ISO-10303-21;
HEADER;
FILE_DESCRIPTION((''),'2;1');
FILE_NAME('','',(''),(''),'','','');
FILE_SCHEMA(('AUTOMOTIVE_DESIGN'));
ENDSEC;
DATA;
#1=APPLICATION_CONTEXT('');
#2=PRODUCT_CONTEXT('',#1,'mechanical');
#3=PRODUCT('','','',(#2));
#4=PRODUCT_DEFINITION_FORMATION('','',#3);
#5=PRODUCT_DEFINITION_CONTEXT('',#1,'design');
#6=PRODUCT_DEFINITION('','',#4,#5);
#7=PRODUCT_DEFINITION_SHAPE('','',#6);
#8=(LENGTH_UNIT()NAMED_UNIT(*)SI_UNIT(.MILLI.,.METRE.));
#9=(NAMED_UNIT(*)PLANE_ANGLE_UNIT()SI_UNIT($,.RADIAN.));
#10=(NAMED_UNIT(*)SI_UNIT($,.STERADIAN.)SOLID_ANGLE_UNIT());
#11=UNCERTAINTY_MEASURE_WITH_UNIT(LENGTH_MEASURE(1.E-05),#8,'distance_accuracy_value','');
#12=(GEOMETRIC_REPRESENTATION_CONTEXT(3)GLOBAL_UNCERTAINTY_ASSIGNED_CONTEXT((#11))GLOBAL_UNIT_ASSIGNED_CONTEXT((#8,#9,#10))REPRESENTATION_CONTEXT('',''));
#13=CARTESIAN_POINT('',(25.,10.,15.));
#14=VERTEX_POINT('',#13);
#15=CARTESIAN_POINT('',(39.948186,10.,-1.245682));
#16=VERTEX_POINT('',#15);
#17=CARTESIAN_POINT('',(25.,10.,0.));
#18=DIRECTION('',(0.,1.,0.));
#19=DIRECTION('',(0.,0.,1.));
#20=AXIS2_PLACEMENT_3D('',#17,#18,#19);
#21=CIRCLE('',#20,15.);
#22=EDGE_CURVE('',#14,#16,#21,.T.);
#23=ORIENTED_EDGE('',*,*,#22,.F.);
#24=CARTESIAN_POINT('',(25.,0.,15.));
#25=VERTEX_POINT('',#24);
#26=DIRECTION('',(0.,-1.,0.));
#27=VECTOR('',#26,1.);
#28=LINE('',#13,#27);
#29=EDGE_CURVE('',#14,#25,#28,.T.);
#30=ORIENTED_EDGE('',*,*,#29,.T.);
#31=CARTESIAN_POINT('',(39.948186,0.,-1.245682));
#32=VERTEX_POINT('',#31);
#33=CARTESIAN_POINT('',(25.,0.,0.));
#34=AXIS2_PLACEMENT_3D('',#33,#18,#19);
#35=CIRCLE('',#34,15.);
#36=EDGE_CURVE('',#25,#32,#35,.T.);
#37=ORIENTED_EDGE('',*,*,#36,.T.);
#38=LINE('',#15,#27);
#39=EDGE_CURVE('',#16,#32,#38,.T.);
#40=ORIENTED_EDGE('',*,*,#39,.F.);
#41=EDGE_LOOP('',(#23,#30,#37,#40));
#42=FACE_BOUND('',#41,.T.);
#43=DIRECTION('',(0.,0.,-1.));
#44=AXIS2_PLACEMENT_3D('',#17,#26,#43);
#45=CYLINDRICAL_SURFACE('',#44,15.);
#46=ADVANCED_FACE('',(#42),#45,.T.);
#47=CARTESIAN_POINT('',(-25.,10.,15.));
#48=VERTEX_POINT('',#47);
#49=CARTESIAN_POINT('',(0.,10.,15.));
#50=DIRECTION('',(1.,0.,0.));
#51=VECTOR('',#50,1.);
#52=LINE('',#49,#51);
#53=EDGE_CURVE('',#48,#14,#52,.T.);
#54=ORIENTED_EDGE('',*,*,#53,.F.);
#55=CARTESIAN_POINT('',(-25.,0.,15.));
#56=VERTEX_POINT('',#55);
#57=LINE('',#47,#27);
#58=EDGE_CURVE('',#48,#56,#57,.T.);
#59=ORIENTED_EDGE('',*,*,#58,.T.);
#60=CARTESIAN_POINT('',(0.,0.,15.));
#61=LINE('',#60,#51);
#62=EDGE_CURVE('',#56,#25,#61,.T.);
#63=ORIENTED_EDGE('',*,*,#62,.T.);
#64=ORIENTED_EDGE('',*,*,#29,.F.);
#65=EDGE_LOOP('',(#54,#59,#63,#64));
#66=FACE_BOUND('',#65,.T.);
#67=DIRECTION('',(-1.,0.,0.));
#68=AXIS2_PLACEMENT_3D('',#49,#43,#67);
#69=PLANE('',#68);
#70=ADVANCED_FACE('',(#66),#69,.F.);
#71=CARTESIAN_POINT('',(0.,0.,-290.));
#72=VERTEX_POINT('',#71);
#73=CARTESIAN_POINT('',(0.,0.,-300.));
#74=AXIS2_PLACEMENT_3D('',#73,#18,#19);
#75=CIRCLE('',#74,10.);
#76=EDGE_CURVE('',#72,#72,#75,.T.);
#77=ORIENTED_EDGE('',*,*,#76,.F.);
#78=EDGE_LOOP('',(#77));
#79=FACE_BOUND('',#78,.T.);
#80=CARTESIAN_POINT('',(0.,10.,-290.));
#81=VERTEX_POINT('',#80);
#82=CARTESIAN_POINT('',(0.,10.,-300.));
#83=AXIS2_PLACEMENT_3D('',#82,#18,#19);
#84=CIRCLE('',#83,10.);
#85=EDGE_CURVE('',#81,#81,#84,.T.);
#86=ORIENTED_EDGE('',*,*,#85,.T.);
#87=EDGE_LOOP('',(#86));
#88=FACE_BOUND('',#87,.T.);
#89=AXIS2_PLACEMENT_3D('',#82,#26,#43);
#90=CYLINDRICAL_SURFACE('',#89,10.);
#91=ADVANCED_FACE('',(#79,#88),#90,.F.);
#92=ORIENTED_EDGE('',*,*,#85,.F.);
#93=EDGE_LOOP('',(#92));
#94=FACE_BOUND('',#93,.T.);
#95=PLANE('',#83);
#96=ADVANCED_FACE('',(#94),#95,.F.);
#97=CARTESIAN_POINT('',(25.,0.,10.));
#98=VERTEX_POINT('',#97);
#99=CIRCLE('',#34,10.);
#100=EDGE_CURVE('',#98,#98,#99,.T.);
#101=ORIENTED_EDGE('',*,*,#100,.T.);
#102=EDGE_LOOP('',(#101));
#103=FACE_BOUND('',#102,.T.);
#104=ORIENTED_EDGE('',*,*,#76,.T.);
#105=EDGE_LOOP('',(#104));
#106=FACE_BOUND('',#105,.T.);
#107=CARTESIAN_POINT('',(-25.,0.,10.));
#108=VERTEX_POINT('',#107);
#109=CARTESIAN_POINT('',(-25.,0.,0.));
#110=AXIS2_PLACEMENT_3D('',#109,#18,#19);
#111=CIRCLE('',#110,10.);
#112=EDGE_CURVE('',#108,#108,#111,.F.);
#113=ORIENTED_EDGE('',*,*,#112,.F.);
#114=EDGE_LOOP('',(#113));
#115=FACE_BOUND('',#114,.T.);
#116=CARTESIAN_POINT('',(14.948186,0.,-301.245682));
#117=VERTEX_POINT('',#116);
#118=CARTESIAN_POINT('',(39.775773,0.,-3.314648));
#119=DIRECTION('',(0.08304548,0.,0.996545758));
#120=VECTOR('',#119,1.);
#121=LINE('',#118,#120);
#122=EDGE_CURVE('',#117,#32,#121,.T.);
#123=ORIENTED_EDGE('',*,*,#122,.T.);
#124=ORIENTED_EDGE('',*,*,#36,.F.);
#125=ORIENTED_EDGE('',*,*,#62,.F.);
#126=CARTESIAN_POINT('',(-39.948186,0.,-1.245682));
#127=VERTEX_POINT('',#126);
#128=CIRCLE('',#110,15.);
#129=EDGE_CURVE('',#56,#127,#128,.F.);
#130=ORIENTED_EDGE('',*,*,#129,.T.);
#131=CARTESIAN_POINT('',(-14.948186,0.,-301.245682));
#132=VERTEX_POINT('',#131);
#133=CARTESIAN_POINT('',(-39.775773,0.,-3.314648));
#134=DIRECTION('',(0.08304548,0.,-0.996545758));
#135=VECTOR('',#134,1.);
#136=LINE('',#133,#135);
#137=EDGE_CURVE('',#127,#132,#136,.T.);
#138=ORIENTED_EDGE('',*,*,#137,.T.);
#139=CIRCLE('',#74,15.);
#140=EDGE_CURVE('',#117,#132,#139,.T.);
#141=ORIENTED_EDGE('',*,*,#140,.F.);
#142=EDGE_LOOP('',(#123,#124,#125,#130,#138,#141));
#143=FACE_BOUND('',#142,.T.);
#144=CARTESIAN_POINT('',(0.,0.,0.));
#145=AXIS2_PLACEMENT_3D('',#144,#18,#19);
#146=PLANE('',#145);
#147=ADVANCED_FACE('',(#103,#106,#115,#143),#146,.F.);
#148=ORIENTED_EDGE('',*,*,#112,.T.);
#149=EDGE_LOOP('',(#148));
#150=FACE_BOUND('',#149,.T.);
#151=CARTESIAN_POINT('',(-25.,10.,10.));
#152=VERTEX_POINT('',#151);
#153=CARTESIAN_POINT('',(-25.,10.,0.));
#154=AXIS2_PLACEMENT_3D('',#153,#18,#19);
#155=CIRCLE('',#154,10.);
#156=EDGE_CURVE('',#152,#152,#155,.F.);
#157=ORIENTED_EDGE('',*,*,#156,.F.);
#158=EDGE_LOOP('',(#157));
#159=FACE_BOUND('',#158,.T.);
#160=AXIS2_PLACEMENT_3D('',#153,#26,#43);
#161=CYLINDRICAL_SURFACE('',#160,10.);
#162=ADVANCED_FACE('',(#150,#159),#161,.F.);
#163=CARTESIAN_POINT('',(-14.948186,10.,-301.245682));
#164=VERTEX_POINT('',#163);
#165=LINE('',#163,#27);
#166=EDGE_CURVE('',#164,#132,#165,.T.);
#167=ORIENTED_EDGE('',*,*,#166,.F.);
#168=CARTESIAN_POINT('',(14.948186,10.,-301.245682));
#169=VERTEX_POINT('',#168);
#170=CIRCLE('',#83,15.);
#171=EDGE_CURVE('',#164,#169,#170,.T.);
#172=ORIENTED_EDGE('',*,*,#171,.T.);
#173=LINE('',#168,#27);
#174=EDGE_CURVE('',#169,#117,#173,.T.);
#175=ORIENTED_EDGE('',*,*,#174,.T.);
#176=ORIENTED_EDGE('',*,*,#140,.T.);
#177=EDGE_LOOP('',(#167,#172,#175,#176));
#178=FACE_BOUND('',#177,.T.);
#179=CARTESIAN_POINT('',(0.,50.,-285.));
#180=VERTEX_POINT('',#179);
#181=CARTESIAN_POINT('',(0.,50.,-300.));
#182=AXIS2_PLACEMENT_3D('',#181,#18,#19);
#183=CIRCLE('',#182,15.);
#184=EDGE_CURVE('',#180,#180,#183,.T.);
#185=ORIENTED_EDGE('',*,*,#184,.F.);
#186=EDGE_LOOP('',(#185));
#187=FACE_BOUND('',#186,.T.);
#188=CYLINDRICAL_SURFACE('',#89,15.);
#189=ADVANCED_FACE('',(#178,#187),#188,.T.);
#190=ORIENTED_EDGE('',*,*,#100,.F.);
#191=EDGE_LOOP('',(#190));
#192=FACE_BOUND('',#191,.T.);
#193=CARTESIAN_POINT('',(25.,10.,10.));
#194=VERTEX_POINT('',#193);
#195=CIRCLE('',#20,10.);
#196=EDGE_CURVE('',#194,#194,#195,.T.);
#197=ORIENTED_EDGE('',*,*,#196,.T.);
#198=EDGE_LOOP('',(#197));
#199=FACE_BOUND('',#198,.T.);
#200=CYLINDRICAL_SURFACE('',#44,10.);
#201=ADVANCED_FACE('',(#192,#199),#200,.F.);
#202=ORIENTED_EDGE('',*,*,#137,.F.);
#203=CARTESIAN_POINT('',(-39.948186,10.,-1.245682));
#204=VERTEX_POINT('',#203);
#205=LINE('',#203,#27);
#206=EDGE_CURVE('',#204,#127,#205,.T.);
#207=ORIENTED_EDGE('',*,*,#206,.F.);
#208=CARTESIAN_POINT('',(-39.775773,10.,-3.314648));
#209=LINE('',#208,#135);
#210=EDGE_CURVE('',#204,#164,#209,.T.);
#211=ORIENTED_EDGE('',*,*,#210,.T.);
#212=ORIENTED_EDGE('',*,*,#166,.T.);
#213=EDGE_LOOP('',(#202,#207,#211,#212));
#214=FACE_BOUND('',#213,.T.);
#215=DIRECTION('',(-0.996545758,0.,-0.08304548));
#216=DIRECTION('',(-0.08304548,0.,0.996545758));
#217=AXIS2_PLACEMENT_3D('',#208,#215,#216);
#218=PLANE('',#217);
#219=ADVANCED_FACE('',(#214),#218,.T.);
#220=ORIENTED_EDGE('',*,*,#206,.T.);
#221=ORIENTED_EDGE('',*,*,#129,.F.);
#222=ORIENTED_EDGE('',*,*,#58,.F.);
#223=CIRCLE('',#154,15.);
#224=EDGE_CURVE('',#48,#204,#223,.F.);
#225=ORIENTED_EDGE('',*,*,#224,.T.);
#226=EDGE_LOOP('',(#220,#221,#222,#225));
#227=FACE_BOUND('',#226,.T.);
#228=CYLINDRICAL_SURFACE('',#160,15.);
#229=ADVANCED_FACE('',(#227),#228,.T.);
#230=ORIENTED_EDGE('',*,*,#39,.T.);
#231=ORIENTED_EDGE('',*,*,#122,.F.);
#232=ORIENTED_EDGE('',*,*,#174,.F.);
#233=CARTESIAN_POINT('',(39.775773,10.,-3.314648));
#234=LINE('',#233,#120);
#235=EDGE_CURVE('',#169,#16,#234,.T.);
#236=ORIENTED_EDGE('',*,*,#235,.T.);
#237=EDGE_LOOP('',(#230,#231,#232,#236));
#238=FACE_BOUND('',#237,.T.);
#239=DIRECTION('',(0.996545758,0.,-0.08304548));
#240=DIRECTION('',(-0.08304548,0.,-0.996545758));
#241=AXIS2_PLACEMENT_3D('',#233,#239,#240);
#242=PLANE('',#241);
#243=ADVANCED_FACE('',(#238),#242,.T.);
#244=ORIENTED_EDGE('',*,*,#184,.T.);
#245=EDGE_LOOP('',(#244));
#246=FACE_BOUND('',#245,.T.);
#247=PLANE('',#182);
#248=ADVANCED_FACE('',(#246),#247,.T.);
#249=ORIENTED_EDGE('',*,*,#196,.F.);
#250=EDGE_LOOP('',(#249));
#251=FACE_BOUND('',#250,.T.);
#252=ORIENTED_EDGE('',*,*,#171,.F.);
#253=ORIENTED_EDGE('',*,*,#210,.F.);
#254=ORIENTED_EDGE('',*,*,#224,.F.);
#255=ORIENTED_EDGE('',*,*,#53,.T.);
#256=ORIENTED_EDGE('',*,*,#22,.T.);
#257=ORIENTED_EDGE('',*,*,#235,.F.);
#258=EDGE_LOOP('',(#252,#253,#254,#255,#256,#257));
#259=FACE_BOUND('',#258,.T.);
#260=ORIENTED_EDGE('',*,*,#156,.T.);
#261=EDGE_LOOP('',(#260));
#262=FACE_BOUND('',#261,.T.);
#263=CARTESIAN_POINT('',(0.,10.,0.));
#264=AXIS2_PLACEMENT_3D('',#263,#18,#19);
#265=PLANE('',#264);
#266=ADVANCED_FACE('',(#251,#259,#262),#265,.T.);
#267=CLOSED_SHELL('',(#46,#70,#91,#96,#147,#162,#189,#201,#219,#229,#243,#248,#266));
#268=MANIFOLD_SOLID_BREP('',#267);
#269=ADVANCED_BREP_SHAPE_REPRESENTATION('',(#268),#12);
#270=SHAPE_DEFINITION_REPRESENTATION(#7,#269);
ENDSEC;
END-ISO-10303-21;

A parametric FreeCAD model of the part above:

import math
import FreeCAD as App
import Part
import Sketcher
from FreeCAD import Vector
Q = App.Units.Quantity

doc = App.newDocument("Part")
body = doc.addObject("PartDesign::Body", "Body")

sketch1 = body.newObject("Sketcher::SketchObject", "Sketch")
sketch1.AttachmentSupport = (doc.getObject("XZ_Plane"), [""])
sketch1.MapMode = "FlatFace"
sketch1.addGeometry(Part.LineSegment(Vector(-25, 15, 0), Vector(25, 15, 0)), False)
sketch1.addGeometry(Part.ArcOfCircle(Part.Circle(Vector(25, 0, 0), Vector(0, 0, 1), 15), math.radians(-5), math.radians(90)), False)
sketch1.addGeometry(Part.LineSegment(Vector(40, -1, 0), Vector(15, -301, 0)), False)
sketch1.addGeometry(Part.ArcOfCircle(Part.Circle(Vector(0, -300, 0), Vector(0, 0, 1), 15), math.radians(-175), math.radians(-5)), False)
sketch1.addGeometry(Part.LineSegment(Vector(-15, -301, 0), Vector(-40, -1, 0)), False)
sketch1.addGeometry(Part.ArcOfCircle(Part.Circle(Vector(-25, 0, 0), Vector(0, 0, 1), 15), math.radians(90), math.radians(185)), False)
sketch1.addGeometry(Part.Circle(Vector(-25, 0, 0), Vector(0, 0, 1), 10), False)
sketch1.addGeometry(Part.Circle(Vector(25, 0, 0), Vector(0, 0, 1), 10), False)
sketch1.addGeometry(Part.Circle(Vector(0, -300, 0), Vector(0, 0, 1), 10), False)
sketch1.addConstraint(Sketcher.Constraint("Tangent", 0, 2, 1, 2))
sketch1.addConstraint(Sketcher.Constraint("Tangent", 1, 1, 2, 1))
sketch1.addConstraint(Sketcher.Constraint("Tangent", 2, 2, 3, 2))
sketch1.addConstraint(Sketcher.Constraint("Tangent", 3, 1, 4, 1))
sketch1.addConstraint(Sketcher.Constraint("Tangent", 4, 2, 5, 2))
sketch1.addConstraint(Sketcher.Constraint("Tangent", 5, 1, 0, 1))
sketch1.addConstraint(Sketcher.Constraint("Horizontal", 0))
sketch1.addConstraint(Sketcher.Constraint("Coincident", 6, 3, 5, 3))
sketch1.addConstraint(Sketcher.Constraint("Coincident", 7, 3, 1, 3))
sketch1.addConstraint(Sketcher.Constraint("Coincident", 8, 3, 3, 3))
sketch1.addConstraint(Sketcher.Constraint("Equal", 1, 3))
sketch1.addConstraint(Sketcher.Constraint("Equal", 3, 5))
sketch1.addConstraint(Sketcher.Constraint("Equal", 6, 7))
sketch1.addConstraint(Sketcher.Constraint("Equal", 7, 8))
sketch1.addConstraint(Sketcher.Constraint("Symmetric", 1, 3, 5, 3, -1, 1))
sketch1.addConstraint(Sketcher.Constraint("PointOnObject", 3, 3, -2))
sketch1.addConstraint(Sketcher.Constraint("Diameter", 6, Q("20 mm")))
sketch1.addConstraint(Sketcher.Constraint("Radius", 1, Q("15 mm")))
sketch1.addConstraint(Sketcher.Constraint("DistanceX", 0, 1, 0, 2, Q("50 mm")))
sketch1.addConstraint(Sketcher.Constraint("DistanceY", 3, 3, -1, 1, Q("300 mm")))
pad1 = body.newObject("PartDesign::Pad", "Pad")
pad1.Profile = sketch1
pad1.Length = 10
pad1.Reversed = True

sketch2 = body.newObject("Sketcher::SketchObject", "Sketch001")
sketch2.AttachmentSupport = (doc.getObject("XZ_Plane"), [""])
sketch2.MapMode = "FlatFace"
sketch2.AttachmentOffset = App.Placement(Vector(0, 0, -10), App.Rotation())
sketch2.addGeometry(Part.Circle(Vector(0, -300, 0), Vector(0, 0, 1), 15), False)
sketch2.addConstraint(Sketcher.Constraint("PointOnObject", 0, 3, -2))
sketch2.addConstraint(Sketcher.Constraint("Diameter", 0, Q("30 mm")))
sketch2.addConstraint(Sketcher.Constraint("DistanceY", 0, 3, -1, 1, Q("300 mm")))
pad2 = body.newObject("PartDesign::Pad", "Pad001")
pad2.Profile = sketch2
pad2.Length = 40
pad2.Reversed = True

doc.recompute()
